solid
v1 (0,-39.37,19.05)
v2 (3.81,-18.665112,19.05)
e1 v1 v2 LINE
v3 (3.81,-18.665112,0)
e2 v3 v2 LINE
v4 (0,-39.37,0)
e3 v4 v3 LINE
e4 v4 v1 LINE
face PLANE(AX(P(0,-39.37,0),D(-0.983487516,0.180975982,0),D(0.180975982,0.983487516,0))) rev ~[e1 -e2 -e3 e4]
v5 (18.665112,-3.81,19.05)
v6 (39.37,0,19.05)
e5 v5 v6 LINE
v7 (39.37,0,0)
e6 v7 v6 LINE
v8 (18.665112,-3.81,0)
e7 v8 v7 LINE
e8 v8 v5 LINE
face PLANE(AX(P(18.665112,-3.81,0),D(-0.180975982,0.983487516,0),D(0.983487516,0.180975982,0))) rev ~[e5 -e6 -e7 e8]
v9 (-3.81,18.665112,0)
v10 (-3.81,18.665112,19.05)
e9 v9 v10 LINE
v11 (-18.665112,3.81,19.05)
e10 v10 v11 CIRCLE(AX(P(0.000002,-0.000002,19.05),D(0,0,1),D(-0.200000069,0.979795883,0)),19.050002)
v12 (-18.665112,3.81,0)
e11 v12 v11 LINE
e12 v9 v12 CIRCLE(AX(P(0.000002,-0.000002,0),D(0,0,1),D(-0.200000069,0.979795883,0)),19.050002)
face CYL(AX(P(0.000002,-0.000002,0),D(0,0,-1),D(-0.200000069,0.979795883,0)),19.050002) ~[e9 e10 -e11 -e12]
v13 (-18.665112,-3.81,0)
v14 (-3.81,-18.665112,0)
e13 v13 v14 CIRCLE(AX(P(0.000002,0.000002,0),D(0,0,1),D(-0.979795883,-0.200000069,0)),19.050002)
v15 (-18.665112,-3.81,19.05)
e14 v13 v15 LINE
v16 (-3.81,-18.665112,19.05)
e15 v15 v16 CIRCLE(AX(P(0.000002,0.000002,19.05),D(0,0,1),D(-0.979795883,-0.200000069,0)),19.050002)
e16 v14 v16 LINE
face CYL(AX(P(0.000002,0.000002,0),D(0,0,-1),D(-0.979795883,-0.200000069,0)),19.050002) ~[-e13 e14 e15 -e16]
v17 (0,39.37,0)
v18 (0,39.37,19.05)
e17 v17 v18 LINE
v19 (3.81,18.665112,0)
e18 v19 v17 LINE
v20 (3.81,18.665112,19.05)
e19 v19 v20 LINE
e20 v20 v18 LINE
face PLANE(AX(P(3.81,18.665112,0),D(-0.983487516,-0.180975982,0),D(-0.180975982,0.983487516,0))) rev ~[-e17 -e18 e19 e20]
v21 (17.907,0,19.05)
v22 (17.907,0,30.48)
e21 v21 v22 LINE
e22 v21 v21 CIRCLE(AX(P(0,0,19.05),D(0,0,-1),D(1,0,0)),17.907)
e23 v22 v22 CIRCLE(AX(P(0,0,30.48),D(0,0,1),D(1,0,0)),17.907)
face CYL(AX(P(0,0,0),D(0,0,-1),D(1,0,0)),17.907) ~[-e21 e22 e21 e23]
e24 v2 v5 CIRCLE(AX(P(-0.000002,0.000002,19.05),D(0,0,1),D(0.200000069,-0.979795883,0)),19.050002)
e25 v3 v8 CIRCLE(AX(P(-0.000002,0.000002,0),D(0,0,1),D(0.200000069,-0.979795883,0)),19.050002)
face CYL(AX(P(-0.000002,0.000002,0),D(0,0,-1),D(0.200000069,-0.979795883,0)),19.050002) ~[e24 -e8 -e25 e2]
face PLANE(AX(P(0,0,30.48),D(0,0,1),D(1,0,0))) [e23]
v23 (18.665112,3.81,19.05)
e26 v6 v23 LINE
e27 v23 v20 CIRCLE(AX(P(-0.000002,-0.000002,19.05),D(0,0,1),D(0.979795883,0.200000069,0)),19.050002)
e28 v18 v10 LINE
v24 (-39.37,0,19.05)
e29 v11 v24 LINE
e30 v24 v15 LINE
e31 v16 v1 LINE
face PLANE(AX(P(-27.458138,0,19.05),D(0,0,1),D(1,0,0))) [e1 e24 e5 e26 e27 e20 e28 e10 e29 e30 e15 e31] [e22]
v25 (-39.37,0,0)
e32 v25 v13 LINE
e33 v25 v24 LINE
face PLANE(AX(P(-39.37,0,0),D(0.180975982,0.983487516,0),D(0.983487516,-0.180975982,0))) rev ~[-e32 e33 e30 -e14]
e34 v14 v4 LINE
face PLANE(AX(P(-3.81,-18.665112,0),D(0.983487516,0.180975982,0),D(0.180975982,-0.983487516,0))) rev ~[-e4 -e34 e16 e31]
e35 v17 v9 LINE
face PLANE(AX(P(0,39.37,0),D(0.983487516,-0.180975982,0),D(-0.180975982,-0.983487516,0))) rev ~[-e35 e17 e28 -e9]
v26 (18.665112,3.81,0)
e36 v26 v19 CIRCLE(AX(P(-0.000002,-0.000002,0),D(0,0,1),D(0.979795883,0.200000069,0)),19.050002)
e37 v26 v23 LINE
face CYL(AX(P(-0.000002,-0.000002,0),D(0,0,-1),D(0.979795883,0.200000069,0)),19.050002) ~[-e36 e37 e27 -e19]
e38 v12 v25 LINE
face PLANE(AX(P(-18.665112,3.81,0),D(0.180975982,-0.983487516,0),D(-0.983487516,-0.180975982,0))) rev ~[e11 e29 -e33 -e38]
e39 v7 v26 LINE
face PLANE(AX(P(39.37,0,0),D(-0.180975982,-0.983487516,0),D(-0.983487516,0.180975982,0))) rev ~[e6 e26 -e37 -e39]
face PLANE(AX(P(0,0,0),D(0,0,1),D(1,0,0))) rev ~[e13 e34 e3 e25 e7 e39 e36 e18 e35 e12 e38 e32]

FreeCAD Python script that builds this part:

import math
import FreeCAD as App
import Part
import Sketcher

V = App.Vector
Q = App.Units.Quantity

doc = App.newDocument("Part")
body = doc.addObject("PartDesign::Body", "Body")

# Sketch on XY plane
sketch1 = body.newObject("Sketcher::SketchObject", "Sketch")
sketch1.AttachmentSupport = (doc.getObject("XY_Plane"), [""])
sketch1.MapMode = "FlatFace"
sketch1.addGeometry(Part.LineSegment(V(-18.665112, 3.81, 0), V(-39.37, 0, 0)), False)
sketch1.addGeometry(Part.LineSegment(V(-39.37, 0, 0), V(-18.665112, -3.81, 0)), False)
sketch1.addGeometry(Part.ArcOfCircle(Part.Circle(V(0.000002, 0.000002, 0), V(0, 0, 1), 19.050002), math.radians(-168.463037), math.radians(-101.536963)), False)
sketch1.addGeometry(Part.LineSegment(V(-3.81, -18.665112, 0), V(0, -39.37, 0)), False)
sketch1.addGeometry(Part.LineSegment(V(0, -39.37, 0), V(3.81, -18.665112, 0)), False)
sketch1.addGeometry(Part.ArcOfCircle(Part.Circle(V(-0.000002, 0.000002, 0), V(0, 0, 1), 19.050002), math.radians(-78.463037), math.radians(-11.536963)), False)
sketch1.addGeometry(Part.LineSegment(V(18.665112, -3.81, 0), V(39.37, 0, 0)), False)
sketch1.addGeometry(Part.LineSegment(V(39.37, 0, 0), V(18.665112, 3.81, 0)), False)
sketch1.addGeometry(Part.ArcOfCircle(Part.Circle(V(-0.000002, -0.000002, 0), V(0, 0, 1), 19.050002), math.radians(11.536963), math.radians(78.463037)), False)
sketch1.addGeometry(Part.LineSegment(V(3.81, 18.665112, 0), V(0, 39.37, 0)), False)
sketch1.addGeometry(Part.LineSegment(V(0, 39.37, 0), V(-3.81, 18.665112, 0)), False)
sketch1.addGeometry(Part.ArcOfCircle(Part.Circle(V(0.000002, -0.000002, 0), V(0, 0, 1), 19.050002), math.radians(101.536963), math.radians(168.463037)), False)
sketch1.addConstraint(Sketcher.Constraint("Coincident", 0, 2, 1, 1))
sketch1.addConstraint(Sketcher.Constraint("Coincident", 1, 2, 2, 1))
sketch1.addConstraint(Sketcher.Constraint("Coincident", 2, 2, 3, 1))
sketch1.addConstraint(Sketcher.Constraint("Coincident", 3, 2, 4, 1))
sketch1.addConstraint(Sketcher.Constraint("Coincident", 4, 2, 5, 1))
sketch1.addConstraint(Sketcher.Constraint("Coincident", 5, 2, 6, 1))
sketch1.addConstraint(Sketcher.Constraint("Coincident", 6, 2, 7, 1))
sketch1.addConstraint(Sketcher.Constraint("Coincident", 7, 2, 8, 1))
sketch1.addConstraint(Sketcher.Constraint("Coincident", 8, 2, 9, 1))
sketch1.addConstraint(Sketcher.Constraint("Coincident", 9, 2, 10, 1))
sketch1.addConstraint(Sketcher.Constraint("Coincident", 10, 2, 11, 1))
sketch1.addConstraint(Sketcher.Constraint("Coincident", 11, 2, 0, 1))
sketch1.addConstraint(Sketcher.Constraint("Coincident", 2, 3, -1, 1))
sketch1.addConstraint(Sketcher.Constraint("Coincident", 5, 3, -1, 1))
sketch1.addConstraint(Sketcher.Constraint("Coincident", 8, 3, -1, 1))
sketch1.addConstraint(Sketcher.Constraint("Coincident", 11, 3, -1, 1))
sketch1.addConstraint(Sketcher.Constraint("Equal", 2, 5))
sketch1.addConstraint(Sketcher.Constraint("Equal", 5, 8))
sketch1.addConstraint(Sketcher.Constraint("Equal", 8, 11))
sketch1.addConstraint(Sketcher.Constraint("Symmetric", 0, 2, 6, 2, -1, 1))
sketch1.addConstraint(Sketcher.Constraint("Symmetric", 3, 2, 9, 2, -1, 1))
sketch1.addConstraint(Sketcher.Constraint("PointOnObject", 0, 2, -1))
sketch1.addConstraint(Sketcher.Constraint("PointOnObject", 3, 2, -2))
sketch1.addConstraint(Sketcher.Constraint("Perpendicular", 0, 3))
sketch1.addConstraint(Sketcher.Constraint("Perpendicular", 1, 4))
sketch1.addConstraint(Sketcher.Constraint("Perpendicular", 3, 6))
sketch1.addConstraint(Sketcher.Constraint("Perpendicular", 4, 7))
sketch1.addConstraint(Sketcher.Constraint("Perpendicular", 6, 9))
sketch1.addConstraint(Sketcher.Constraint("Perpendicular", 7, 10))
sketch1.addConstraint(Sketcher.Constraint("Horizontal", 2, 2, 4, 2))
sketch1.addConstraint(Sketcher.Constraint("Equal", 1, 3))
sketch1.addConstraint(Sketcher.Constraint("Radius", 2, Q("0.7500001 in")))
sketch1.addConstraint(Sketcher.Constraint("DistanceX", 2, 2, 4, 2, Q("0.3 in")))
sketch1.addConstraint(Sketcher.Constraint("DistanceX", 0, 2, -1, 1, Q("1.55 in")))
pad1 = body.newObject("PartDesign::Pad", "Pad")
pad1.Profile = sketch1
pad1.Length = Q("0.75 in")

# Sketch on XY plane
sketch2 = body.newObject("Sketcher::SketchObject", "Sketch001")
sketch2.AttachmentSupport = (doc.getObject("XY_Plane"), [""])
sketch2.MapMode = "FlatFace"
sketch2.addGeometry(Part.Circle(V(0, 0, 0), V(0, 0, 1), 17.907), False)
sketch2.addConstraint(Sketcher.Constraint("Coincident", 0, 3, -1, 1))
sketch2.addConstraint(Sketcher.Constraint("Diameter", 0, Q("1.41 in")))
pad2 = body.newObject("PartDesign::Pad", "Pad001")
pad2.Profile = sketch2
pad2.Length = Q("1.2 in")

doc.recompute()
